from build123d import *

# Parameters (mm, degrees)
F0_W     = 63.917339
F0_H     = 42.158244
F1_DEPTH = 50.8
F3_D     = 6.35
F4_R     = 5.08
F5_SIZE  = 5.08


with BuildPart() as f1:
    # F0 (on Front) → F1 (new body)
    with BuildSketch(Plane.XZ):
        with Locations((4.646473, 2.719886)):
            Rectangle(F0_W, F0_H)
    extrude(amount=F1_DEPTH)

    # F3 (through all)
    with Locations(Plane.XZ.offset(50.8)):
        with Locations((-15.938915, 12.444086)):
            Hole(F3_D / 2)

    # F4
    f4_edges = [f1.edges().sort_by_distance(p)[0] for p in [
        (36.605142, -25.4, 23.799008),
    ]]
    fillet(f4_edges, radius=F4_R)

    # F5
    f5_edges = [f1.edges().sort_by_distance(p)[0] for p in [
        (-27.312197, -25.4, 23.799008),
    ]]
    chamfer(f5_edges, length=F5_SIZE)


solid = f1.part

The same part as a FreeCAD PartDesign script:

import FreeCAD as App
import Part
import Sketcher
Q = App.Units.Quantity


def edges_at(feature, points):
    """Names of the edges that pass closest to the given points."""
    edges = feature.Shape.Edges
    near = lambda p: min(range(len(edges)), key=lambda i: edges[i].distToShape(Part.Vertex(*p))[0])
    return sorted({f"Edge{near(p) + 1}" for p in points})

doc = App.newDocument("Part")
body = doc.addObject("PartDesign::Body", "Body")

sketch1 = body.newObject("Sketcher::SketchObject", "Sketch")
sketch1.AttachmentSupport = (doc.getObject("XZ_Plane"), [""])
sketch1.MapMode = "FlatFace"
sketch1.addGeometry([
    Part.LineSegment(App.Vector(-27.312196, 23.799008, 0), App.Vector(-27.312196, -18.359236, 0)),
    Part.LineSegment(App.Vector(-27.312196, -18.359236, 0), App.Vector(36.605142, -18.359236, 0)),
    Part.LineSegment(App.Vector(36.605142, -18.359236, 0), App.Vector(36.605142, 23.799008, 0)),
    Part.LineSegment(App.Vector(36.605142, 23.799008, 0), App.Vector(-27.312196, 23.799008, 0)),
], False)
sketch1.addConstraint([
    Sketcher.Constraint("Coincident", 0, 2, 1, 1),
    Sketcher.Constraint("Coincident", 1, 2, 2, 1),
    Sketcher.Constraint("Coincident", 2, 2, 3, 1),
    Sketcher.Constraint("Coincident", 3, 2, 0, 1),
    Sketcher.Constraint("Vertical", 0),
    Sketcher.Constraint("Horizontal", 1),
    Sketcher.Constraint("Vertical", 2),
    Sketcher.Constraint("Horizontal", 3),
    Sketcher.Constraint("DistanceX", 1, 1, 1, 2, 63.917339),
    Sketcher.Constraint("DistanceY", 0, 2, 0, 1, 42.158244),
    Sketcher.Constraint("DistanceY", -1, 1, 2, 2, 23.799008),
    Sketcher.Constraint("DistanceX", 0, 2, -1, 1, 27.312196),
])
pad1 = body.newObject("PartDesign::Pad", "Pad")
pad1.Profile = sketch1
pad1.Length = Q("2 in")

sketch2 = body.newObject("Sketcher::SketchObject", "Sketch001")
sketch2.AttachmentSupport = (doc.getObject("XZ_Plane"), [""])
sketch2.MapMode = "FlatFace"
sketch2.AttachmentOffset = App.Placement(App.Vector(0, 0, 2 * 25.4), App.Rotation())
sketch2.addGeometry(Part.Circle(App.Vector(-15.938915, 12.444086, 0), App.Vector(0, 0, 1), 3.175), False)
sketch2.addConstraint([
    Sketcher.Constraint("Diameter", 0, Q("0.25 in")),
    Sketcher.Constraint("DistanceX", 0, 3, -1, 1, 15.938915),
    Sketcher.Constraint("DistanceY", -1, 1, 0, 3, 12.444086),
])
doc.recompute()
hole = body.newObject("PartDesign::Hole", "Hole")
hole.Profile = sketch2
hole.ThreadType = "None"
hole.Diameter = Q("0.25 in")
hole.DepthType = "ThroughAll"
doc.recompute()

fillet = body.newObject("PartDesign::Fillet", "Fillet")
fillet.Base = (hole, edges_at(hole, [(36.605, -25.4, 23.799)]))
fillet.Radius = Q("0.2 in")
doc.recompute()

chamfer = body.newObject("PartDesign::Chamfer", "Chamfer")
chamfer.Base = (fillet, edges_at(fillet, [(-27.312, -25.4, 23.799)]))
chamfer.Size = Q("0.2 in")

doc.recompute()
